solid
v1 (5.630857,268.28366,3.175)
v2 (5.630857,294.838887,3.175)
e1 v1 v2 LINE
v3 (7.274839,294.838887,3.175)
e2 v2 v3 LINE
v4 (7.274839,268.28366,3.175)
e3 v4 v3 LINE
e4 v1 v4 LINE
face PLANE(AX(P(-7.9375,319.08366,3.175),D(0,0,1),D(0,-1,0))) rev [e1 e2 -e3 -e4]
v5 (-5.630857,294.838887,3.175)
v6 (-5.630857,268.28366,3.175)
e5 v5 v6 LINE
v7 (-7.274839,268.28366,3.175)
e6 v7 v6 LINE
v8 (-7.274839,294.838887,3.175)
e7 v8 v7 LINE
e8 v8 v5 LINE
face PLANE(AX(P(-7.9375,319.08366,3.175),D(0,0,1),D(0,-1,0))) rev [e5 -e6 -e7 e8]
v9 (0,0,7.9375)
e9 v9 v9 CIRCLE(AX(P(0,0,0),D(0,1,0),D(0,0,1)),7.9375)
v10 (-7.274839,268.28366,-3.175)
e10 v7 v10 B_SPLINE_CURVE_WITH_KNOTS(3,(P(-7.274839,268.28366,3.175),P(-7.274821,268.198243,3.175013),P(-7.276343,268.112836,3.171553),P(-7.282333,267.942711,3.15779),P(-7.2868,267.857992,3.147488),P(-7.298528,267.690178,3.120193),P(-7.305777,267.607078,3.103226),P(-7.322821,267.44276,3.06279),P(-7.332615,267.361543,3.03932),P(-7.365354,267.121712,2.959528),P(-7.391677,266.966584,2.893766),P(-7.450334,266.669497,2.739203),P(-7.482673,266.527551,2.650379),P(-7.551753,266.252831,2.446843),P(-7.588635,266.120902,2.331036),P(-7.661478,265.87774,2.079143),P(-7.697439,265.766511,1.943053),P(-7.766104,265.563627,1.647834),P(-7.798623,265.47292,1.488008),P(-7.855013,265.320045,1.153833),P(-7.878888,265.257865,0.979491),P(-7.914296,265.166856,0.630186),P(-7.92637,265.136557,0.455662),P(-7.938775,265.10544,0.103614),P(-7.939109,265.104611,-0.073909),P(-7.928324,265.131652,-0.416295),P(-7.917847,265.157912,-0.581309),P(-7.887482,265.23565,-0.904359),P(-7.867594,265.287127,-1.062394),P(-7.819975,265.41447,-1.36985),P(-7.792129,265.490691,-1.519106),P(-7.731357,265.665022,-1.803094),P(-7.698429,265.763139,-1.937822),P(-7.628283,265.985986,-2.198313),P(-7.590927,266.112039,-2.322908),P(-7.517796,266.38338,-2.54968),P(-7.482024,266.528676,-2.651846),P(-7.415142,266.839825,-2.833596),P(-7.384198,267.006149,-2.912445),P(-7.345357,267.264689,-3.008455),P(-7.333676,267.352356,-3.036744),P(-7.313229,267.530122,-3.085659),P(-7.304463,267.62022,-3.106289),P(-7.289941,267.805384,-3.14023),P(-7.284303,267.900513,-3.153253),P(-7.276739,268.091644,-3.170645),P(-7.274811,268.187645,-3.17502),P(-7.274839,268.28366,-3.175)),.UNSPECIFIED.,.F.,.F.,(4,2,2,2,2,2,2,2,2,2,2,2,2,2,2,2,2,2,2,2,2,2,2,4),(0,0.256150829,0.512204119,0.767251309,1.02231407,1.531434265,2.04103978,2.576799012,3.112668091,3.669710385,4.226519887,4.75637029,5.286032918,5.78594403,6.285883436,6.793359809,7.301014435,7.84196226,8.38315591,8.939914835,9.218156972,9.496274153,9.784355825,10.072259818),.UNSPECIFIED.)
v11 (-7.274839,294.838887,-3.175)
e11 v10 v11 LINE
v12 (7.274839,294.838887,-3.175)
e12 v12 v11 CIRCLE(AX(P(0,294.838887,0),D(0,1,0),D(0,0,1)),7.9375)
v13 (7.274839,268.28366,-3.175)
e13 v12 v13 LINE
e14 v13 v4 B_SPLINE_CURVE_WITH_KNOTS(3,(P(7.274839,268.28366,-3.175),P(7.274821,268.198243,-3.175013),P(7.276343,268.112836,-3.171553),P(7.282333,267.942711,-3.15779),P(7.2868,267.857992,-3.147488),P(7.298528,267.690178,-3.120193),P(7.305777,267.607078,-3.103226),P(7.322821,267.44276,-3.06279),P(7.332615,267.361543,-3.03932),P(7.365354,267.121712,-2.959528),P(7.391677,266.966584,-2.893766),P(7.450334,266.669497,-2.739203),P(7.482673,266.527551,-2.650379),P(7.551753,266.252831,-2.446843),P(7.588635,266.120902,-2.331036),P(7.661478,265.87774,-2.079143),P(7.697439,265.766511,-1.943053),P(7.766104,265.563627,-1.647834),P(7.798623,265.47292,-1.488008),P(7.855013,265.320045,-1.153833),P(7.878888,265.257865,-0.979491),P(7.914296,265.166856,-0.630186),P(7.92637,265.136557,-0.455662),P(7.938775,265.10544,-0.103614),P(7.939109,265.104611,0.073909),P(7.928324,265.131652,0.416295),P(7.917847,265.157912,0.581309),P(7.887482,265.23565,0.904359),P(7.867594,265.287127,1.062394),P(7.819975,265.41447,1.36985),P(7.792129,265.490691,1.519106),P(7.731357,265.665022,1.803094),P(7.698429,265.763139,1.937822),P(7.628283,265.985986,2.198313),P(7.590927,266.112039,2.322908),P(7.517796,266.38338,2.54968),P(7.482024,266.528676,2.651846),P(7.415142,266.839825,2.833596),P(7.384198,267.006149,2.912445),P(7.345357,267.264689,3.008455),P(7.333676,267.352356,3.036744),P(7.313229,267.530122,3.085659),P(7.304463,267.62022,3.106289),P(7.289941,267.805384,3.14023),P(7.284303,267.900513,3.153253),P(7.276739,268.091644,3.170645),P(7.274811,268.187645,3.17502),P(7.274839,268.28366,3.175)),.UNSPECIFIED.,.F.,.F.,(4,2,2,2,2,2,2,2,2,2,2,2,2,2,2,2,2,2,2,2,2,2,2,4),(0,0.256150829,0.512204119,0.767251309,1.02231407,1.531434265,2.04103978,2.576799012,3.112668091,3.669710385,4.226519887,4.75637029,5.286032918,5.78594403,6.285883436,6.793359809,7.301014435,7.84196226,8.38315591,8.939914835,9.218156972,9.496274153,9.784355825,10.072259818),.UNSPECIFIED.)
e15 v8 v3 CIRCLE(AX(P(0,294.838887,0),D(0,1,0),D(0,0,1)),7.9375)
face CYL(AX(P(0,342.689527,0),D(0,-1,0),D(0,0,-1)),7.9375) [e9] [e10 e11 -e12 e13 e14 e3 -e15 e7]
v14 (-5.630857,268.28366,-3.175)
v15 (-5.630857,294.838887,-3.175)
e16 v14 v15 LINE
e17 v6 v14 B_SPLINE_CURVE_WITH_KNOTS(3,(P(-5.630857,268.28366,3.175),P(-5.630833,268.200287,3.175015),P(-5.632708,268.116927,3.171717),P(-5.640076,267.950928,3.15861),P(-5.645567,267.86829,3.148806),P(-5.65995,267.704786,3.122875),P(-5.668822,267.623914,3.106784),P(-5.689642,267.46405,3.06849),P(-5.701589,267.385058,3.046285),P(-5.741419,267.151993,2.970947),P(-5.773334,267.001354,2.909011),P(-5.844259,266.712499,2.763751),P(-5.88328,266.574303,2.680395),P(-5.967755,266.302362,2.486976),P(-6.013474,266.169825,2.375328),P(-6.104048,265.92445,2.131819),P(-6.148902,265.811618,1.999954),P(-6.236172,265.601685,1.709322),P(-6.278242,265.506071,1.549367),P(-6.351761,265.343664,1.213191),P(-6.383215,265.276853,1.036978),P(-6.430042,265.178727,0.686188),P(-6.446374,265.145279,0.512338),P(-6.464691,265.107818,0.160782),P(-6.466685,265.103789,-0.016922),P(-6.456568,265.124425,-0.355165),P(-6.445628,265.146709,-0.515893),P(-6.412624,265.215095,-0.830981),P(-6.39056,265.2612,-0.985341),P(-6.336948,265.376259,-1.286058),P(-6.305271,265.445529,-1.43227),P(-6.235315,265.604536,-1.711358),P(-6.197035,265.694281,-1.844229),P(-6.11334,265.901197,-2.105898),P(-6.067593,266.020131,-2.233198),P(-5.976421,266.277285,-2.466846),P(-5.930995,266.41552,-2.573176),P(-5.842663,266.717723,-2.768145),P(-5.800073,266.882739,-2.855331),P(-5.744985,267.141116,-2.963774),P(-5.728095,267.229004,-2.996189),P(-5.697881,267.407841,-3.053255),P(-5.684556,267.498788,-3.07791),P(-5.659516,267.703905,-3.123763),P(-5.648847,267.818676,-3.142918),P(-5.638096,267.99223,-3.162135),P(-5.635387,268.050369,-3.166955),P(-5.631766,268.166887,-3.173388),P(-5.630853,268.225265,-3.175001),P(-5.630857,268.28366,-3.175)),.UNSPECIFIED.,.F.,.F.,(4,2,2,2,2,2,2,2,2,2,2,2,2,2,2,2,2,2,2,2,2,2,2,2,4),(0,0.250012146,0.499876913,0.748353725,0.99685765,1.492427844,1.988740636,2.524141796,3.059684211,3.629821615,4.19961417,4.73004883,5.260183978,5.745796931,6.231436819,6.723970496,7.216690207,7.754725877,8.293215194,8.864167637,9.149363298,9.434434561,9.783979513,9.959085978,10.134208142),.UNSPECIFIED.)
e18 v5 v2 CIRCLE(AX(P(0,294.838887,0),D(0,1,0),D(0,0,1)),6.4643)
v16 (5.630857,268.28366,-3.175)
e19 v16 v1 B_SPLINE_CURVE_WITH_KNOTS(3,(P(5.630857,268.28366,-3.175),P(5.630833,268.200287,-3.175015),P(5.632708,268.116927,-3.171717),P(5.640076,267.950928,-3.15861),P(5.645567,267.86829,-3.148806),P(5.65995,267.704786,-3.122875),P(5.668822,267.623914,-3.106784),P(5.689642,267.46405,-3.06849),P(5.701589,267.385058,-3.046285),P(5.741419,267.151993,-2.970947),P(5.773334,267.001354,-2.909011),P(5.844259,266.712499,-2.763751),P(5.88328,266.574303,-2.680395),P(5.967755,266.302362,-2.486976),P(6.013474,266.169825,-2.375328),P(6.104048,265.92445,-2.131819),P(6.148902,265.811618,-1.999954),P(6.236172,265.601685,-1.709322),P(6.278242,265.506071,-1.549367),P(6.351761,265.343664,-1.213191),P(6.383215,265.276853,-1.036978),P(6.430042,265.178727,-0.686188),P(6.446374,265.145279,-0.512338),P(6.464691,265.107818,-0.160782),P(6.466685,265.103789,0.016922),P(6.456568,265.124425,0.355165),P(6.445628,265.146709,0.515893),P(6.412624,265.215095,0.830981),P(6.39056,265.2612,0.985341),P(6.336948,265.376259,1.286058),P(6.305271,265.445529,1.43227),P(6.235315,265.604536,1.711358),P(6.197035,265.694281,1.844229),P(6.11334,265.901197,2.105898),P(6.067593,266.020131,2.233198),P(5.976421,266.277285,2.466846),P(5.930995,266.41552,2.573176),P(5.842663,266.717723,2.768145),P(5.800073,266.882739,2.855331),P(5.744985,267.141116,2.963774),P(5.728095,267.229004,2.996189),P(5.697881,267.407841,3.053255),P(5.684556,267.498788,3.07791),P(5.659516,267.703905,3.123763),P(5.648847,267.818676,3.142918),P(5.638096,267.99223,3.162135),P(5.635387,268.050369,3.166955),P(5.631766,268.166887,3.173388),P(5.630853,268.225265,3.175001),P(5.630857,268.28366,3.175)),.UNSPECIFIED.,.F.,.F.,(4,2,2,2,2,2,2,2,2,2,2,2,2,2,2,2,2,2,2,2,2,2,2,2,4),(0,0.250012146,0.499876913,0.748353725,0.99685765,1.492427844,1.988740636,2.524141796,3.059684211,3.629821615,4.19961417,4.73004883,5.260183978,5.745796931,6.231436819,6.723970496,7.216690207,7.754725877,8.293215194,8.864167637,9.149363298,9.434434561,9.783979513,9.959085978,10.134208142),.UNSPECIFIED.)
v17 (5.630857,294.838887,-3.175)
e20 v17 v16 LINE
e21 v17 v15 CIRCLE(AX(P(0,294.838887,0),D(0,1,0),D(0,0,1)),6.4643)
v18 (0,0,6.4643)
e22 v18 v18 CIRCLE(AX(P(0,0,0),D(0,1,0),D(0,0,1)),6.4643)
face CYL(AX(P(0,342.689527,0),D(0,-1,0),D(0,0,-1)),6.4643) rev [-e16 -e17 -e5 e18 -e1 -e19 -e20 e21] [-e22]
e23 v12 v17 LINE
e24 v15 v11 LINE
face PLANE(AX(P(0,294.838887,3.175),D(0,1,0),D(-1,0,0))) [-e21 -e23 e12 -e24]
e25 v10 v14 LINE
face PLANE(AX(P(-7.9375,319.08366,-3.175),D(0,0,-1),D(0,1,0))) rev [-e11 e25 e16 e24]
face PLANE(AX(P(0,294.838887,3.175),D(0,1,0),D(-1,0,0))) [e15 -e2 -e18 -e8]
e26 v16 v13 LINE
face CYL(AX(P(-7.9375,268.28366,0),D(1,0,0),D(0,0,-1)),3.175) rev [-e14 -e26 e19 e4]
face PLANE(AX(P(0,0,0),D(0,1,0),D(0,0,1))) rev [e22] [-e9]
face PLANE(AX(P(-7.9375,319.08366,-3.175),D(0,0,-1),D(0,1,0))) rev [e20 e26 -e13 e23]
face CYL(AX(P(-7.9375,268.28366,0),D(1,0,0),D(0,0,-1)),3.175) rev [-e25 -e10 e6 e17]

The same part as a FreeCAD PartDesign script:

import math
import FreeCAD as App
import Part
import Sketcher
Q = App.Units.Quantity

doc = App.newDocument("Part")
params = doc.addObject("Spreadsheet::Sheet", "Params")
for row, (alias, value) in enumerate([
    ("sketch1_diameter", "0.625 in"),
    ("sketch1_diameter2", "0.509 in"),
    ("pad1_length", "294.838887 mm"),
    ("sketch2_width", "2 in"),
    ("sketch2_radius", "0.125 in"),
], start=1):
    params.set(f"A{row}", alias)
    params.set(f"B{row}", "=" + value)
    params.setAlias(f"B{row}", alias)

body = doc.addObject("PartDesign::Body", "Body")

sketch1 = body.newObject("Sketcher::SketchObject", "Sketch")
sketch1.AttachmentSupport = (doc.getObject("XZ_Plane"), [""])
sketch1.MapMode = "FlatFace"
sketch1.addGeometry([
    Part.Circle(App.Vector(0, 0, 0), App.Vector(0, 0, 1), 7.9375),
    Part.Circle(App.Vector(0, 0, 0), App.Vector(0, 0, 1), 6.4643),
], False)
sketch1.addConstraint([
    Sketcher.Constraint("Coincident", 0, 3, -1, 1),
    Sketcher.Constraint("Coincident", 1, 3, -1, 1),
    Sketcher.Constraint("Diameter", 0, Q("0.625 in")),
    Sketcher.Constraint("Diameter", 1, Q("0.509 in")),
])
sketch1.setExpression("Constraints[2]", "Params.sketch1_diameter")
sketch1.setExpression("Constraints[3]", "Params.sketch1_diameter2")
pad1 = body.newObject("PartDesign::Pad", "Pad")
pad1.Profile = sketch1
pad1.setExpression("Length", "Params.pad1_length")
pad1.Reversed = True

sketch2 = body.newObject("Sketcher::SketchObject", "Sketch001")
sketch2.AttachmentSupport = (doc.getObject("YZ_Plane"), [""])
sketch2.MapMode = "FlatFace"
sketch2.addGeometry([
    Part.LineSegment(App.Vector(268.28366, -3.175, 0), App.Vector(319.08366, -3.175, 0)),
    Part.ArcOfCircle(Part.Circle(App.Vector(319.08366, 0, 0), App.Vector(0, 0, 1), 3.175), math.radians(-90), math.radians(90)),
    Part.LineSegment(App.Vector(319.08366, 3.175, 0), App.Vector(268.28366, 3.175, 0)),
    Part.ArcOfCircle(Part.Circle(App.Vector(268.28366, 0, 0), App.Vector(0, 0, 1), 3.175), math.radians(90), math.radians(270)),
], False)
sketch2.addConstraint([
    Sketcher.Constraint("Tangent", 0, 2, 1, 1),
    Sketcher.Constraint("Tangent", 1, 2, 2, 1),
    Sketcher.Constraint("Tangent", 2, 2, 3, 1),
    Sketcher.Constraint("Tangent", 3, 2, 0, 1),
    Sketcher.Constraint("Horizontal", 0),
    Sketcher.Constraint("Horizontal", 2),
    Sketcher.Constraint("PointOnObject", 1, 3, -1),
    Sketcher.Constraint("DistanceX", 0, 1, 0, 2, Q("2 in")),
    Sketcher.Constraint("Radius", 1, Q("0.125 in")),
    Sketcher.Constraint("DistanceX", -1, 1, 1, 3, 319.08366),
])
sketch2.setExpression("Constraints[7]", "Params.sketch2_width")
sketch2.setExpression("Constraints[8]", "Params.sketch2_radius")
pocket1 = body.newObject("PartDesign::Pocket", "Pocket")
pocket1.Profile = sketch2
pocket1.Type = "ThroughAll"
pocket1.Midplane = True

doc.recompute()
